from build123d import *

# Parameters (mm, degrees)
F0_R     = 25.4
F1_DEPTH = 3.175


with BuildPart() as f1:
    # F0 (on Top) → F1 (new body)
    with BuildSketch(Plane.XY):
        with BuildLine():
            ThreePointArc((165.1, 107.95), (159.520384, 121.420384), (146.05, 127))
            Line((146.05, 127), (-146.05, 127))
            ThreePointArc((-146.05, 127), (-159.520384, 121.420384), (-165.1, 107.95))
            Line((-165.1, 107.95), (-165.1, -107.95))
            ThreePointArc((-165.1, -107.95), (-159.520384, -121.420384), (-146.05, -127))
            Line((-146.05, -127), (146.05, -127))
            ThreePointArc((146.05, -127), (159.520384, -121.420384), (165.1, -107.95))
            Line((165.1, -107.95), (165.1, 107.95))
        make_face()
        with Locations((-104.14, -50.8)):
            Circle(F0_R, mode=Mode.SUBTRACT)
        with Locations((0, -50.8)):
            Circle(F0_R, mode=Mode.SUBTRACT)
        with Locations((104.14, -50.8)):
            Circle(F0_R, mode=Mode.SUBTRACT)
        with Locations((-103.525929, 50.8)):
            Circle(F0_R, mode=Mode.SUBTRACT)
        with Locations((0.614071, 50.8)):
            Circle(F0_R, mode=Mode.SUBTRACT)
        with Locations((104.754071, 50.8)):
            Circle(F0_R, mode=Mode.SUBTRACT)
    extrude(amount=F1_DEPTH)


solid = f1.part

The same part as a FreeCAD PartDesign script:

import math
import FreeCAD as App
import Part
import Sketcher

V = App.Vector
Q = App.Units.Quantity

doc = App.newDocument("Part")
params = doc.addObject("Spreadsheet::Sheet", "Params")
for row, (alias, value) in enumerate([
    ("sketch1_diameter", "2 in"),
    ("sketch1_radius", "0.75 in"),
    ("sketch1_width", "11.5 in"),
    ("sketch1_height", "8.5 in"),
    ("pad1_length", "0.125 in"),
], start=1):
    params.set(f"A{row}", alias)
    params.set(f"B{row}", "=" + value)
    params.setAlias(f"B{row}", alias)

body = doc.addObject("PartDesign::Body", "Body")

# Sketch on XY plane
sketch1 = doc.addObject("Sketcher::SketchObject", "Sketch")
body.addObject(sketch1)
sketch1.AttachmentSupport = (doc.XY_Plane, [""])
sketch1.MapMode = "FlatFace"
sketch1.addGeometry([
    Part.ArcOfCircle(Part.Circle(V(146, 108, 0), V(0, 0, 1), 19), math.radians(0), math.radians(90)),  # 0
    Part.LineSegment(V(146, 127, 0), V(-146, 127, 0)),  # 1
    Part.ArcOfCircle(Part.Circle(V(-146, 108, 0), V(0, 0, 1), 19), math.radians(90), math.radians(180)),  # 2
    Part.LineSegment(V(-165, 108, 0), V(-165, -108, 0)),  # 3
    Part.ArcOfCircle(Part.Circle(V(-146, -108, 0), V(0, 0, 1), 19), math.radians(-180), math.radians(-90)),  # 4
    Part.LineSegment(V(-146, -127, 0), V(146, -127, 0)),  # 5
    Part.ArcOfCircle(Part.Circle(V(146, -108, 0), V(0, 0, 1), 19), math.radians(-90), math.radians(0)),  # 6
    Part.LineSegment(V(165, -108, 0), V(165, 108, 0)),  # 7
    Part.Circle(V(-104, -51, 0), V(0, 0, 1), 25),  # 8
    Part.Circle(V(0, -51, 0), V(0, 0, 1), 25),  # 9
    Part.Circle(V(104, -51, 0), V(0, 0, 1), 25),  # 10
    Part.Circle(V(-104, 51, 0), V(0, 0, 1), 25),  # 11
    Part.Circle(V(1, 51, 0), V(0, 0, 1), 25),  # 12
    Part.Circle(V(105, 51, 0), V(0, 0, 1), 25),  # 13
], False)
sketch1.addConstraint([
    Sketcher.Constraint("Tangent", 0, 2, 1, 1),
    Sketcher.Constraint("Tangent", 1, 2, 2, 1),
    Sketcher.Constraint("Tangent", 2, 2, 3, 1),
    Sketcher.Constraint("Tangent", 3, 2, 4, 1),
    Sketcher.Constraint("Tangent", 4, 2, 5, 1),
    Sketcher.Constraint("Tangent", 5, 2, 6, 1),
    Sketcher.Constraint("Tangent", 6, 2, 7, 1),
    Sketcher.Constraint("Tangent", 7, 2, 0, 1),
    Sketcher.Constraint("Horizontal", 1),
    Sketcher.Constraint("Vertical", 3),
    Sketcher.Constraint("Horizontal", 5),
    Sketcher.Constraint("Vertical", 7),
    Sketcher.Constraint("Equal", 0, 2),
    Sketcher.Constraint("Equal", 2, 4),
    Sketcher.Constraint("Equal", 4, 6),
    Sketcher.Constraint("Equal", 8, 9),
    Sketcher.Constraint("Equal", 9, 10),
    Sketcher.Constraint("Equal", 10, 11),
    Sketcher.Constraint("Equal", 11, 12),
    Sketcher.Constraint("Equal", 12, 13),
    Sketcher.Constraint("Symmetric", 0, 3, 4, 3, -1, 1),
    Sketcher.Constraint("Symmetric", 8, 3, 10, 3, -2),
    Sketcher.Constraint("PointOnObject", 9, 3, -2),
    Sketcher.Constraint("Horizontal", 8, 3, 9, 3),
    Sketcher.Constraint("Horizontal", 11, 3, 12, 3),
    Sketcher.Constraint("Horizontal", 12, 3, 13, 3),
    Sketcher.Constraint("Diameter", 8, Q("2 in")),
    Sketcher.Constraint("Radius", 0, Q("0.75 in")),
    Sketcher.Constraint("DistanceX", 1, 2, 1, 1, Q("11.5 in")),
    Sketcher.Constraint("DistanceY", 3, 2, 3, 1, Q("8.5 in")),
    Sketcher.Constraint("DistanceY", 8, 3, -1, 1, Q("2 in")),
    Sketcher.Constraint("DistanceY", -1, 1, 11, 3, Q("2 in")),
    Sketcher.Constraint("DistanceX", 8, 3, -1, 1, Q("4.1 in")),
    Sketcher.Constraint("DistanceX", 11, 3, 12, 3, Q("4.1 in")),
    Sketcher.Constraint("DistanceX", 12, 3, 13, 3, Q("4.1 in")),
    Sketcher.Constraint("DistanceX", 11, 3, -1, 1, 103.525929),
])
sketch1.setExpression("Constraints[26]", "Params.sketch1_diameter")
sketch1.setExpression("Constraints[27]", "Params.sketch1_radius")
sketch1.setExpression("Constraints[28]", "Params.sketch1_width")
sketch1.setExpression("Constraints[29]", "Params.sketch1_height")
pad1 = doc.addObject("PartDesign::Pad", "Pad")
body.addObject(pad1)
pad1.Profile = sketch1
pad1.setExpression("Length", "Params.pad1_length")

doc.recompute()
